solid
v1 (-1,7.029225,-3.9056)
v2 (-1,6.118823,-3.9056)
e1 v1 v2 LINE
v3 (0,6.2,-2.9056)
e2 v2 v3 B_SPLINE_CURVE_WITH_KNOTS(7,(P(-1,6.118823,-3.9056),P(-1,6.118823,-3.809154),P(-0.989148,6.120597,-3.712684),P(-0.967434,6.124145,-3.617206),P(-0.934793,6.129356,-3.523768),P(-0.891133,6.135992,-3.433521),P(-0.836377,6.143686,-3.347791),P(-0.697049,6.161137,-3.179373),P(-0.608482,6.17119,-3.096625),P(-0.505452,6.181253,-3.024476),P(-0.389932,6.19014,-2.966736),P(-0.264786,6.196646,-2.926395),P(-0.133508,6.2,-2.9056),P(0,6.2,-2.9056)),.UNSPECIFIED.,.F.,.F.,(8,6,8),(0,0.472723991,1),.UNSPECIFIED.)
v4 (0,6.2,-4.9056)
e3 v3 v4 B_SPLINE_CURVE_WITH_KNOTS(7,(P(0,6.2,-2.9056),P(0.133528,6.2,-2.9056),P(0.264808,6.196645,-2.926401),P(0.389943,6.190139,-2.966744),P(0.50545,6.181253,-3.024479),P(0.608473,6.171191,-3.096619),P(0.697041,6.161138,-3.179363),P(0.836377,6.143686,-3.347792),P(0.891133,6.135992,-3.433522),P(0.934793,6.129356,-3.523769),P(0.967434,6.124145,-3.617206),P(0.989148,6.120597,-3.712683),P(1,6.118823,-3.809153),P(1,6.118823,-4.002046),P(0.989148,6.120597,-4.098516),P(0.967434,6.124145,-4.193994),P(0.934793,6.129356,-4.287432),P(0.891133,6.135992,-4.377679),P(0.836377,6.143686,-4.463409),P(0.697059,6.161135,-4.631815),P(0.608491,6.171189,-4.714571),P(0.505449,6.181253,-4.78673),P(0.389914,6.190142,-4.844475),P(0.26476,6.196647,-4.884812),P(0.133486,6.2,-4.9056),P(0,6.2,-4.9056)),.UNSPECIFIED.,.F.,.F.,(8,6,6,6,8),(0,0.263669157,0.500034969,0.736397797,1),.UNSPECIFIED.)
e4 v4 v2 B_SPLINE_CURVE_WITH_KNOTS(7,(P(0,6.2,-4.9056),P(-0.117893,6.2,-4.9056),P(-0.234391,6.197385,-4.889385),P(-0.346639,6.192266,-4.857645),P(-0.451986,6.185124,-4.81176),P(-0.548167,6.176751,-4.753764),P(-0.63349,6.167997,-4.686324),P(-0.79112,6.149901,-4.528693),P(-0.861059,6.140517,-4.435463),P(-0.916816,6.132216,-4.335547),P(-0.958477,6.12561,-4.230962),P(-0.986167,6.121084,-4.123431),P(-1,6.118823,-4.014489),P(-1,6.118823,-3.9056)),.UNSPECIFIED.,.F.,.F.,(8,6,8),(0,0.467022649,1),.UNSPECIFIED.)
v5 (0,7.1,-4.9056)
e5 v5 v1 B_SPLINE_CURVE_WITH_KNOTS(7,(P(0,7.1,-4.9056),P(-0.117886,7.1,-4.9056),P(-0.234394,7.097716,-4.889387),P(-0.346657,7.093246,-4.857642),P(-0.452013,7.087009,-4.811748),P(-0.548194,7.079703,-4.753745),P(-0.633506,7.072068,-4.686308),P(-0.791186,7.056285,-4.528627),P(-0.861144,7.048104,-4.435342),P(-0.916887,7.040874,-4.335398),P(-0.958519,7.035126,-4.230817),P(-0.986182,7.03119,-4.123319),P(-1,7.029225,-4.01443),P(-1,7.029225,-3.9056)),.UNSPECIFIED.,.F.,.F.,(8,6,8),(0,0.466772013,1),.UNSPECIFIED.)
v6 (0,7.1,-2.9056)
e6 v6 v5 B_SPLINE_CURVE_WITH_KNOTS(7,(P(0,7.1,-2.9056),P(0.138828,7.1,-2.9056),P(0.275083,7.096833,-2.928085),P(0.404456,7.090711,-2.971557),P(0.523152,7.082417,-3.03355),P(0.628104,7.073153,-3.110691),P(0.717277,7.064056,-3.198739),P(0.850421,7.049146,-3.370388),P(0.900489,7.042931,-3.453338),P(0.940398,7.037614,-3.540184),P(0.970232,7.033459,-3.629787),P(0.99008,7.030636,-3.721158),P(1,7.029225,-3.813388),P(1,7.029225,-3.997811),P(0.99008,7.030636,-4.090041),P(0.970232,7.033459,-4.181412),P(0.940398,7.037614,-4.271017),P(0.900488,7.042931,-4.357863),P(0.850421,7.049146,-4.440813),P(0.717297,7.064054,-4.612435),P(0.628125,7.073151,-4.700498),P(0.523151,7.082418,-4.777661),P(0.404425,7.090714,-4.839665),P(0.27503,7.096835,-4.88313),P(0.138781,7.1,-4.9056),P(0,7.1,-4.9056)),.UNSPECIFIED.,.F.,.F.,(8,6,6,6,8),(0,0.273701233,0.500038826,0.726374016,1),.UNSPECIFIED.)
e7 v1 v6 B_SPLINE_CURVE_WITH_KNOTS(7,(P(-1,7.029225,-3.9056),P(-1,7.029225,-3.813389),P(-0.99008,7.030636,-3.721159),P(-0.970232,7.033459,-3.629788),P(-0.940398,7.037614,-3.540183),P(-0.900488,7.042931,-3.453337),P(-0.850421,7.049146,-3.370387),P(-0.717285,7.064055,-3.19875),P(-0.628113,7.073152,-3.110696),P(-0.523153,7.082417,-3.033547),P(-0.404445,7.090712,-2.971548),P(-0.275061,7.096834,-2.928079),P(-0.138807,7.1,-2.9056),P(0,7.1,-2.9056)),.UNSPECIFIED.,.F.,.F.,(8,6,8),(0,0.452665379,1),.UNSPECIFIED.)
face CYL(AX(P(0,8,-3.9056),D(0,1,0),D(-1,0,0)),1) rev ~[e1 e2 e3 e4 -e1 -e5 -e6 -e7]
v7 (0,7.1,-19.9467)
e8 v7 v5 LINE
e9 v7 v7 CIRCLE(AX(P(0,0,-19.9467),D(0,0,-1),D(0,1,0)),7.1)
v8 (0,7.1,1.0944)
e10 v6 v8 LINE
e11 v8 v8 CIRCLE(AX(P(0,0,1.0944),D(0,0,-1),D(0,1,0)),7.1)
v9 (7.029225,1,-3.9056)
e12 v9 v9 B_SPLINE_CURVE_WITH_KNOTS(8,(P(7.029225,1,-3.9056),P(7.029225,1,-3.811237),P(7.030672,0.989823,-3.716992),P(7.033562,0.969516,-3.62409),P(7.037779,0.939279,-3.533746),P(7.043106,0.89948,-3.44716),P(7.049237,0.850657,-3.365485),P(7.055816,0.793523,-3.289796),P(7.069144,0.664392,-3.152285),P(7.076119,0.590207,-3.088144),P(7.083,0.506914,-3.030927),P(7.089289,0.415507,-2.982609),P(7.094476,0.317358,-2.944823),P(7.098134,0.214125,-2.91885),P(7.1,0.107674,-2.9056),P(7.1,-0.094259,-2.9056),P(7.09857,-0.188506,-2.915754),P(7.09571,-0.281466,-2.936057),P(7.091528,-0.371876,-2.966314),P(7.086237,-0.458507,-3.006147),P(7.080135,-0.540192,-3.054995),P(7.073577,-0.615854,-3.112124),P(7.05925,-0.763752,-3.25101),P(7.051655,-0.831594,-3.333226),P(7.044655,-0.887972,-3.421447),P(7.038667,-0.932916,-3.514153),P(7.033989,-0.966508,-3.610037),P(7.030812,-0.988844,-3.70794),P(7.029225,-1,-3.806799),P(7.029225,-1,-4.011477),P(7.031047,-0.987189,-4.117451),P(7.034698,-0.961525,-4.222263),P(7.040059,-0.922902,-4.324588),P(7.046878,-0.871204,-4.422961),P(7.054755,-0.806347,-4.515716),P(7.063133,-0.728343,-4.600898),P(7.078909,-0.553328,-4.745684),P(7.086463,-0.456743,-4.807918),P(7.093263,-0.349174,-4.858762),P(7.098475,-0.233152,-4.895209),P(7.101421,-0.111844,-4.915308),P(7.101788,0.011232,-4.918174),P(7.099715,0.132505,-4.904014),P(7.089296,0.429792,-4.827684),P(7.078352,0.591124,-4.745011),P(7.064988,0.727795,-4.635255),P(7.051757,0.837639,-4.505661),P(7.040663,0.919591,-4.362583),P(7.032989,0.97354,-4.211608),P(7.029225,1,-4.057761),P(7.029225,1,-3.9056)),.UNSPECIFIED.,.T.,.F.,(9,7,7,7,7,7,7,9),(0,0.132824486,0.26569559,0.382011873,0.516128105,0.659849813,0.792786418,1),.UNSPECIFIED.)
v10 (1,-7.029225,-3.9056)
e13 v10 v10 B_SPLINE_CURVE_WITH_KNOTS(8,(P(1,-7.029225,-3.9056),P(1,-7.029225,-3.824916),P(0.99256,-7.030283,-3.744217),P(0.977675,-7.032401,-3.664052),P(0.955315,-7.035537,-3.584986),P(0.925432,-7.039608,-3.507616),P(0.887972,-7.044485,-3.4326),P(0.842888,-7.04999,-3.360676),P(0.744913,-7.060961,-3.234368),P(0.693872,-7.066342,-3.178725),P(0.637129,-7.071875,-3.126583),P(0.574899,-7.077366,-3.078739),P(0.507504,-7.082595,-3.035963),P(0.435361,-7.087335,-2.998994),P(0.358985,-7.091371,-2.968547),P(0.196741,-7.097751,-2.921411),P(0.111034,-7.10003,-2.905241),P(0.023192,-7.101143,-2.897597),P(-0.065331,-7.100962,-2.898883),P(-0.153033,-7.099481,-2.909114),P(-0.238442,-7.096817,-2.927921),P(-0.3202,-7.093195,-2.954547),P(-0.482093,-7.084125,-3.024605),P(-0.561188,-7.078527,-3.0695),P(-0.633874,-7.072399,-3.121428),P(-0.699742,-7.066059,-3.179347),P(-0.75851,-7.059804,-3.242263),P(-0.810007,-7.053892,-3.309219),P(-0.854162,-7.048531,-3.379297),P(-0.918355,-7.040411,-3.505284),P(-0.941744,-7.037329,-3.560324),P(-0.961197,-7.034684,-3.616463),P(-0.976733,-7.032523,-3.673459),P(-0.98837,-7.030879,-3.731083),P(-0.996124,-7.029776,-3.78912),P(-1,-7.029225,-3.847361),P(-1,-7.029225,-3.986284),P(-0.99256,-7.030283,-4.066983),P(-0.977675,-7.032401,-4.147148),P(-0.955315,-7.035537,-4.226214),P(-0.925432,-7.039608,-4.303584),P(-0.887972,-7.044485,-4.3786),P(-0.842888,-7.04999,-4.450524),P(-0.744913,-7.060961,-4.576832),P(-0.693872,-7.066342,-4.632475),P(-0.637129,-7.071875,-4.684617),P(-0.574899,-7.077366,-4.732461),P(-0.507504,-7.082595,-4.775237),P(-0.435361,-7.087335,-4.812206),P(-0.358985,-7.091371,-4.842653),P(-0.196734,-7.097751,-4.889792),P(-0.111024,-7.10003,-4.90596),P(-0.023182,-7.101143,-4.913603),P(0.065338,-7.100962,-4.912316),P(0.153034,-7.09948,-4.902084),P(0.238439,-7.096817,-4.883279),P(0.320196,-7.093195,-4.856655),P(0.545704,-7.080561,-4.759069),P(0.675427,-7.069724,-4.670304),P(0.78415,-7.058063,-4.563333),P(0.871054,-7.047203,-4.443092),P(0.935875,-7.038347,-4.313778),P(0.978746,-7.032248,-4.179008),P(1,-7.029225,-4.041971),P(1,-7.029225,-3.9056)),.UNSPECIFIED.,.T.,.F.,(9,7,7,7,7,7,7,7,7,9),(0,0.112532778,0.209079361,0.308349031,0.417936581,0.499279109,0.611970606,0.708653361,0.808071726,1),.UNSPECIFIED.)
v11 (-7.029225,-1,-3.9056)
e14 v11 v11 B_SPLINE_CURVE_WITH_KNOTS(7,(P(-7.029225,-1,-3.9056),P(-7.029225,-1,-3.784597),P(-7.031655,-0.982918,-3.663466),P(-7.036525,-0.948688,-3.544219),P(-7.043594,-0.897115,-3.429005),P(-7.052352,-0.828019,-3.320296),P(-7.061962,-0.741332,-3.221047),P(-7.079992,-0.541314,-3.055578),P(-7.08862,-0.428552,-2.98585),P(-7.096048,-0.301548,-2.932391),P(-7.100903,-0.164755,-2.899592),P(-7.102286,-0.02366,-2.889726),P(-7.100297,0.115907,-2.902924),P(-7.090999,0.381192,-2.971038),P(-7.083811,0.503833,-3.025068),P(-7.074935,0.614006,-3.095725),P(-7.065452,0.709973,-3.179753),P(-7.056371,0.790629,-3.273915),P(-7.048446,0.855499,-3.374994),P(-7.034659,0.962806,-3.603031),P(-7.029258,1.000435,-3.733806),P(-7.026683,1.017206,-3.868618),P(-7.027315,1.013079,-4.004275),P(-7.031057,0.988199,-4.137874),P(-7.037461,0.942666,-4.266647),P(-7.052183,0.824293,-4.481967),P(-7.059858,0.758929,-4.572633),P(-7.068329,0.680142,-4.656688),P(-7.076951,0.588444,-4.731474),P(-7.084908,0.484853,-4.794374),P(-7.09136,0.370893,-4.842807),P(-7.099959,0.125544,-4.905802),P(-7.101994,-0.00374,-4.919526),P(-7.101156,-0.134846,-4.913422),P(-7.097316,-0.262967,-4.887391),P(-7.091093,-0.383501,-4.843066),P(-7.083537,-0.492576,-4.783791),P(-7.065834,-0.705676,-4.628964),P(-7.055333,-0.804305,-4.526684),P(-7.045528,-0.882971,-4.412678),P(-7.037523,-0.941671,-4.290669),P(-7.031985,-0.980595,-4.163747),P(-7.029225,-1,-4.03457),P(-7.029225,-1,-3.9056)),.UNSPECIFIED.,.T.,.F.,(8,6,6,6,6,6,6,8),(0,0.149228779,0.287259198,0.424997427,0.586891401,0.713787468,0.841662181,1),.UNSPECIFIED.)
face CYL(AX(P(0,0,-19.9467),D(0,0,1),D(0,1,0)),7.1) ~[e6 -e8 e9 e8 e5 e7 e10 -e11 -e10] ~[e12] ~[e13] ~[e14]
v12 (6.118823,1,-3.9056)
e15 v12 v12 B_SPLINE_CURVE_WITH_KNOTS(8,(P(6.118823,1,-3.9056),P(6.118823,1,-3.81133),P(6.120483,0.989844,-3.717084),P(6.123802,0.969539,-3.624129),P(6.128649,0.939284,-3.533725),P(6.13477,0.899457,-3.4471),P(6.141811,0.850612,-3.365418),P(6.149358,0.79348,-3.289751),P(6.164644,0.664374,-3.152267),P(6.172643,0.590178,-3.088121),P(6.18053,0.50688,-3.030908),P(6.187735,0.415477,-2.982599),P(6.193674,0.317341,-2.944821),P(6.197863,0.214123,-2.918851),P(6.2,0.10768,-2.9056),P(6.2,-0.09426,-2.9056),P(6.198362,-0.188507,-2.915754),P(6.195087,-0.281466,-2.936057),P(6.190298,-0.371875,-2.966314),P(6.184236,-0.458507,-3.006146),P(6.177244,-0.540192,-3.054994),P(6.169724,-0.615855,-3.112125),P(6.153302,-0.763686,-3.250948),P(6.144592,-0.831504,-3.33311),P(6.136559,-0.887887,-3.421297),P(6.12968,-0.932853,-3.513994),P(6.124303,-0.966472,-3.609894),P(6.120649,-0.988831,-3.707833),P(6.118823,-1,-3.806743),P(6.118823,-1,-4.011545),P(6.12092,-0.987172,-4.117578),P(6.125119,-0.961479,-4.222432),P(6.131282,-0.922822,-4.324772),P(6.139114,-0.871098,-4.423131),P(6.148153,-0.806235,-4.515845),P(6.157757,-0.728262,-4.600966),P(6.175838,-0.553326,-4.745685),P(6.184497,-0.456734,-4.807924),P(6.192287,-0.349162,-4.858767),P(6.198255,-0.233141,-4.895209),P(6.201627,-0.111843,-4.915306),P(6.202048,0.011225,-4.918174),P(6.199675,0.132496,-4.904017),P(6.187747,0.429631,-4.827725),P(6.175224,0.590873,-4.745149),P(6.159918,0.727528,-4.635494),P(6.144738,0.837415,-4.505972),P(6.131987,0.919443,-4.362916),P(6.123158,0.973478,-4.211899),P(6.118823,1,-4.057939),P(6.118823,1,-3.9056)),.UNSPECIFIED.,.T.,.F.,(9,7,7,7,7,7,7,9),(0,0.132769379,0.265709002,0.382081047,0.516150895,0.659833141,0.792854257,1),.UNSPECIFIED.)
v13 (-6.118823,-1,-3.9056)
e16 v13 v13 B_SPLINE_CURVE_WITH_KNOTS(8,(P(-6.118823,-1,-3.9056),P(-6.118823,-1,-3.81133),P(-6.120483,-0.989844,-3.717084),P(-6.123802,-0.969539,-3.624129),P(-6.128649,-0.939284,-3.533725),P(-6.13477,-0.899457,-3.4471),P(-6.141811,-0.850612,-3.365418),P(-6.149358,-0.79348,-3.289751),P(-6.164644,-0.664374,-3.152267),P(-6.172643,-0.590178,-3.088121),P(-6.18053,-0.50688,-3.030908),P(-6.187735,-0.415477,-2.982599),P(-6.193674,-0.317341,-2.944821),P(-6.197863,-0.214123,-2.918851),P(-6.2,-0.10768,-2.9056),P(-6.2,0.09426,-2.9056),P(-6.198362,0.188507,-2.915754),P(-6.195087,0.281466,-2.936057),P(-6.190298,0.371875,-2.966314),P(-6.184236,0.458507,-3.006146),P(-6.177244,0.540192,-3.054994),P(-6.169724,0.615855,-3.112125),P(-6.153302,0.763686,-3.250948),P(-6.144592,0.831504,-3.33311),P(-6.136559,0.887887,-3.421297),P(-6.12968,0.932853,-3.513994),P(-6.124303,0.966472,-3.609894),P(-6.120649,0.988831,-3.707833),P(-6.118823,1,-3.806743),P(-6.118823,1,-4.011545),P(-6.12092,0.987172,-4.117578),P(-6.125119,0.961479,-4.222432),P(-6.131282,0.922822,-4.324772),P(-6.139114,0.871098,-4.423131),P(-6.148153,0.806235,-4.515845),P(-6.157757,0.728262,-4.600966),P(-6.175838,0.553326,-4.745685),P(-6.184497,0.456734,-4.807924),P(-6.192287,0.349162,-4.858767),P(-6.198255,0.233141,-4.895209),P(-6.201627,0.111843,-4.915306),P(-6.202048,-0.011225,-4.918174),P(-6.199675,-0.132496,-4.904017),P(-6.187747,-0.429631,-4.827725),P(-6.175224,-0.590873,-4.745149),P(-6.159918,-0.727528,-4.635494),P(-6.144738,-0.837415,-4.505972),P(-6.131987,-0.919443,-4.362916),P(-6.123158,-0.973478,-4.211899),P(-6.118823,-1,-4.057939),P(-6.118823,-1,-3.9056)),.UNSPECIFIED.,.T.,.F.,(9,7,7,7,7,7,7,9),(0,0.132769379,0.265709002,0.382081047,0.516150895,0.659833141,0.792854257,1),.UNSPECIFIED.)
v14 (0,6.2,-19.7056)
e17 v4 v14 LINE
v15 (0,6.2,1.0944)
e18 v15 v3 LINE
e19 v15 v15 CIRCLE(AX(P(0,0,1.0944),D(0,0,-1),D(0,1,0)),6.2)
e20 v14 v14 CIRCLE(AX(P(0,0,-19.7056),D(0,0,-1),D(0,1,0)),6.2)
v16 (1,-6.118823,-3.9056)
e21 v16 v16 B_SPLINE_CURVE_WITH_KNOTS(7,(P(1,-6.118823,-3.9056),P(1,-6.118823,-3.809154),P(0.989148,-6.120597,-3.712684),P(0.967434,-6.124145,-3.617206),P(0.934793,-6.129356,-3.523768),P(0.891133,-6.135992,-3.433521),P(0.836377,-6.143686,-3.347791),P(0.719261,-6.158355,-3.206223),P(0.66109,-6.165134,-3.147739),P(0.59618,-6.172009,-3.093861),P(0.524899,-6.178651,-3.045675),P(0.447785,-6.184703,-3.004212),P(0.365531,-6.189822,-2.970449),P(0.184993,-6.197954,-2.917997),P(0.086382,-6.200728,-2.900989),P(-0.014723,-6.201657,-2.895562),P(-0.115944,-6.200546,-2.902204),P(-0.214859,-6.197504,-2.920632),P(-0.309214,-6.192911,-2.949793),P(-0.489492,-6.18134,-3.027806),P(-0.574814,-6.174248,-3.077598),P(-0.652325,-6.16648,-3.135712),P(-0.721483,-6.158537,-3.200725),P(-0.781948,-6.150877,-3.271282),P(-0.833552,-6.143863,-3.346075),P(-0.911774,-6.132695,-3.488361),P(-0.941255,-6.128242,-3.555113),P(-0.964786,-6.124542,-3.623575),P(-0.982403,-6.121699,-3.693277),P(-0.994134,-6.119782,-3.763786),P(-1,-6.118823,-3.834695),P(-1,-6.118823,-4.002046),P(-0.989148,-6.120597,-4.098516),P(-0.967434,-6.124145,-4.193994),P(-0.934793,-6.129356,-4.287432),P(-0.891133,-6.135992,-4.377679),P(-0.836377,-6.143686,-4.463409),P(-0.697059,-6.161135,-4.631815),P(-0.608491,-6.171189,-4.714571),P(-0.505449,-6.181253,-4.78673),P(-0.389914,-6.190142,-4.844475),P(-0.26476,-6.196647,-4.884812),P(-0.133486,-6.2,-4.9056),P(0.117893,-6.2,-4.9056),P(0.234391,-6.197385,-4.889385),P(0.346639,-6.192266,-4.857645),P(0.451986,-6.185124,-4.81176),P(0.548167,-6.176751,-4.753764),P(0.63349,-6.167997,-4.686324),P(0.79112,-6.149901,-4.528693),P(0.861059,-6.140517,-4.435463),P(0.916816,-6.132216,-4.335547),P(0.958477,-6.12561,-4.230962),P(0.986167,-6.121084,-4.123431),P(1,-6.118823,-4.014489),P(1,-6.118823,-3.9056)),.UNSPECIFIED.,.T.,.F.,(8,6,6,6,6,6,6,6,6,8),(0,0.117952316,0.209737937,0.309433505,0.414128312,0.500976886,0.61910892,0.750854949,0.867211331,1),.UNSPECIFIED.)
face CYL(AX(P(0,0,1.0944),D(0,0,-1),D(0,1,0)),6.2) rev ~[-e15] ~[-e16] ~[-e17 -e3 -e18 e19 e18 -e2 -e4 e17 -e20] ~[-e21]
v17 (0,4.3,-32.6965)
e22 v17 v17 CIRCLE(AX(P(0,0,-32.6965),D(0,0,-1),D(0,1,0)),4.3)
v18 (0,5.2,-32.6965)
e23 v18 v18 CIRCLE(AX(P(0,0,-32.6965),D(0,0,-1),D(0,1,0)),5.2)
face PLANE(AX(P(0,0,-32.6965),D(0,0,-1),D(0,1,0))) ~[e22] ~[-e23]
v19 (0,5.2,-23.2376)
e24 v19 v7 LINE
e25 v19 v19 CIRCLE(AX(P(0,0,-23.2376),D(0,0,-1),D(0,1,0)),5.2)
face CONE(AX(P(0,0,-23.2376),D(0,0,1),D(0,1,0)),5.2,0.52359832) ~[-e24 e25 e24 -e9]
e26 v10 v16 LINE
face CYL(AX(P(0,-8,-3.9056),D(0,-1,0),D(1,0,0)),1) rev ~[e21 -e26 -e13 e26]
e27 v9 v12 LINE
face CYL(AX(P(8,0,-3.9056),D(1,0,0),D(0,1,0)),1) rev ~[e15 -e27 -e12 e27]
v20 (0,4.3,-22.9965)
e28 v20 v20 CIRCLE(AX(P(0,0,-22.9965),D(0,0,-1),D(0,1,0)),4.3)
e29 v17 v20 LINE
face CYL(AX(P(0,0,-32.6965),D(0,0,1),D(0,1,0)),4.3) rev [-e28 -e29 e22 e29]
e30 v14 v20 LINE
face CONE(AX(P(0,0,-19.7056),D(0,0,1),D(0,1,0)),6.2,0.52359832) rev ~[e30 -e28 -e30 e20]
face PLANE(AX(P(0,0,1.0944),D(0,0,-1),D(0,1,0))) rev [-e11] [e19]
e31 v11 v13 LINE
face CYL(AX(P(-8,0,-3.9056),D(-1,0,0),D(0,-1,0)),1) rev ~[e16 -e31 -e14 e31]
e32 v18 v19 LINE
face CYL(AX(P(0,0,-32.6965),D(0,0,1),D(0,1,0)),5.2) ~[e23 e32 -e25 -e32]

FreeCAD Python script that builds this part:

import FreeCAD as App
import Part
import Sketcher
Q = App.Units.Quantity


def add_polygon(sketch, points):
    """Adds a closed chain of lines whose ends are joined by coincident constraints."""
    first, n = sketch.GeometryCount, len(points)
    for a, b in zip(points, points[1:] + points[:1]):
        sketch.addGeometry(Part.LineSegment(App.Vector(*a, 0), App.Vector(*b, 0)), False)
    for i in range(n):
        sketch.addConstraint(Sketcher.Constraint("Coincident", first + i, 2, first + (i + 1) % n, 1))

doc = App.newDocument("Part")
body = doc.addObject("PartDesign::Body", "Body")

sketch1 = body.newObject("Sketcher::SketchObject", "Sketch")
sketch1.AttachmentSupport = (doc.getObject("YZ_Plane"), [""])
sketch1.MapMode = "FlatFace"
add_polygon(sketch1, [(7.1, 1.1), (6.2, 1.1), (6.2, -19.7), (4.3, -23), (4.3, -32.7), (5.2, -32.7), (5.2, -23.2), (7.1, -19.9)])
sketch1.addConstraint([
    Sketcher.Constraint("Horizontal", 0),
    Sketcher.Constraint("Vertical", 1),
    Sketcher.Constraint("Vertical", 3),
    Sketcher.Constraint("Horizontal", 4),
    Sketcher.Constraint("Vertical", 5),
    Sketcher.Constraint("Vertical", 7),
    Sketcher.Constraint("Parallel", 2, 6),
    Sketcher.Constraint("Equal", 0, 4),
    Sketcher.Constraint("DistanceX", 0, 2, 0, 1, Q("0.9 mm")),
    Sketcher.Constraint("DistanceY", 1, 2, 1, 1, Q("20.8 mm")),
    Sketcher.Constraint("DistanceY", 3, 2, 3, 1, Q("9.7 mm")),
    Sketcher.Constraint("DistanceX", -1, 1, 0, 2, Q("6.2 mm")),
    Sketcher.Constraint("DistanceX", -1, 1, 2, 2, Q("4.3 mm")),
    Sketcher.Constraint("Angle", 2, Q("-120 deg")),
    Sketcher.Constraint("DistanceY", 5, 1, 5, 2, Q("9.459 mm")),
    Sketcher.Constraint("DistanceY", -1, 1, 0, 2, Q("1.0944 mm")),
])
revolution = body.newObject("PartDesign::Revolution", "Revolution")
revolution.Profile = sketch1
revolution.ReferenceAxis = (sketch1, ["V_Axis"])
revolution.Angle = 360

sketch2 = body.newObject("Sketcher::SketchObject", "Sketch001")
sketch2.AttachmentSupport = (doc.getObject("YZ_Plane"), [""])
sketch2.MapMode = "FlatFace"
sketch2.AttachmentOffset = App.Placement(App.Vector(0, 0, 8), App.Rotation())
sketch2.addGeometry(Part.Circle(App.Vector(0, -3.9, 0), App.Vector(0, 0, 1), 1), False)
sketch2.addConstraint([
    Sketcher.Constraint("PointOnObject", 0, 3, -2),
    Sketcher.Constraint("Diameter", 0, Q("2 mm")),
    Sketcher.Constraint("DistanceY", 0, 3, -1, 1, Q("3.9056 mm")),
])
pocket1 = body.newObject("PartDesign::Pocket", "Pocket")
pocket1.Profile = sketch2
pocket1.Length = 10
doc.recompute()

polarpattern = body.newObject("PartDesign::PolarPattern", "PolarPattern")
polarpattern.Originals = [pocket1]
polarpattern.Axis = (doc.getObject("Z_Axis"), [""])
polarpattern.Angle = 360
polarpattern.Occurrences = 4
body.Tip = polarpattern

doc.recompute()
